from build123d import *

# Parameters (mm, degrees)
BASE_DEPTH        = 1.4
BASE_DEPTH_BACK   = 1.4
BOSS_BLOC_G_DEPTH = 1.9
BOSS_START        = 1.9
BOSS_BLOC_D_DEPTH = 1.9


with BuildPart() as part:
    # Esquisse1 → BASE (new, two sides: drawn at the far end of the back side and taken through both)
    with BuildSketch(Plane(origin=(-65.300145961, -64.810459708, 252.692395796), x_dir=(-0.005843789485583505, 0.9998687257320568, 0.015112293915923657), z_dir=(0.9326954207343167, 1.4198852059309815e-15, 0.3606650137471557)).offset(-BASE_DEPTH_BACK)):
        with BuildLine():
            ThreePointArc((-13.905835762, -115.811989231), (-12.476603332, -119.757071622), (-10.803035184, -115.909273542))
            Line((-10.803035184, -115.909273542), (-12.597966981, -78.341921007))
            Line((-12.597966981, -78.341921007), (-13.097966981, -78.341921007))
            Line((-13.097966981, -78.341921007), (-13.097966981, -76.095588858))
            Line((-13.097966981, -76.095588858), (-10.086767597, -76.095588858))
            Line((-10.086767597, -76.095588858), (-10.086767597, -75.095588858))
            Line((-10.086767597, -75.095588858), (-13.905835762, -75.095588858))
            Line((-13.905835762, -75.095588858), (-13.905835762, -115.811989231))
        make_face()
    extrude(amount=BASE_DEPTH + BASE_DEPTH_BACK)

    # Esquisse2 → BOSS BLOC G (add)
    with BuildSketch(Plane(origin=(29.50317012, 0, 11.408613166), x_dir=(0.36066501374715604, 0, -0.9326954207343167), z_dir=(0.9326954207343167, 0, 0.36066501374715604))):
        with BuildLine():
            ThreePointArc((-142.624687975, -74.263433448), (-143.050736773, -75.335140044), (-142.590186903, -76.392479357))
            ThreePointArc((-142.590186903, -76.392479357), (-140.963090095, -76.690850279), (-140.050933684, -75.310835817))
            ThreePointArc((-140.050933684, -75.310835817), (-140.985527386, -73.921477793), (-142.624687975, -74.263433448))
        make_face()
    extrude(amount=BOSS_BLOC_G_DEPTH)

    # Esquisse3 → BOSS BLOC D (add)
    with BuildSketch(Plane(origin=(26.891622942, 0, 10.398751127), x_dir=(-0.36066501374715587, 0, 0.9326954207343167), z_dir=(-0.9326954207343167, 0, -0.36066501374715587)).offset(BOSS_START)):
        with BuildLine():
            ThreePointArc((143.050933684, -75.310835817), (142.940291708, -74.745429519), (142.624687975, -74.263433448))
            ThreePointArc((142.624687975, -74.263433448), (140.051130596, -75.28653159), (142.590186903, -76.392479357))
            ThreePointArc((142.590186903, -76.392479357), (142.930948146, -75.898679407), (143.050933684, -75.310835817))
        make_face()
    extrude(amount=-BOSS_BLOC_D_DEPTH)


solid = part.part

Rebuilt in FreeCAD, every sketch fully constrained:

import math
import FreeCAD as App
import Part
import Sketcher

doc = App.newDocument("Part")
body = doc.addObject("PartDesign::Body", "Body")

# Sketch on an angled plane
sketch1 = body.newObject("Sketcher::SketchObject", "Sketch")
sketch1.Placement = App.Placement(App.Vector(-65.300146, -64.81046, 252.692396), App.Rotation(App.Vector(-0.005843789, 0.999868726, 0.015112294), App.Vector(-0.360617668, -0.016202818, 0.932572982), App.Vector(0.932695421, 0, 0.360665014), "ZXY"))
sketch1.addGeometry(Part.ArcOfCircle(Part.Circle(App.Vector(-12.4, -117.5, 0), App.Vector(0, 0, 1), 2.3), math.radians(132), math.radians(405)), False)
sketch1.addGeometry(Part.LineSegment(App.Vector(-10.8, -115.9, 0), App.Vector(-12.6, -78.3, 0)), False)
sketch1.addGeometry(Part.LineSegment(App.Vector(-12.6, -78.3, 0), App.Vector(-13.1, -78.3, 0)), False)
sketch1.addGeometry(Part.LineSegment(App.Vector(-13.1, -78.3, 0), App.Vector(-13.1, -76.1, 0)), False)
sketch1.addGeometry(Part.LineSegment(App.Vector(-13.1, -76.1, 0), App.Vector(-10.1, -76.1, 0)), False)
sketch1.addGeometry(Part.LineSegment(App.Vector(-10.1, -76.1, 0), App.Vector(-10.1, -75.1, 0)), False)
sketch1.addGeometry(Part.LineSegment(App.Vector(-10.1, -75.1, 0), App.Vector(-13.9, -75.1, 0)), False)
sketch1.addGeometry(Part.LineSegment(App.Vector(-13.9, -75.1, 0), App.Vector(-13.9, -115.8, 0)), False)
sketch1.addConstraint(Sketcher.Constraint("Coincident", 0, 2, 1, 1))
sketch1.addConstraint(Sketcher.Constraint("Coincident", 1, 2, 2, 1))
sketch1.addConstraint(Sketcher.Constraint("Coincident", 2, 2, 3, 1))
sketch1.addConstraint(Sketcher.Constraint("Coincident", 3, 2, 4, 1))
sketch1.addConstraint(Sketcher.Constraint("Coincident", 4, 2, 5, 1))
sketch1.addConstraint(Sketcher.Constraint("Coincident", 5, 2, 6, 1))
sketch1.addConstraint(Sketcher.Constraint("Coincident", 6, 2, 7, 1))
sketch1.addConstraint(Sketcher.Constraint("Coincident", 7, 2, 0, 1))
sketch1.addConstraint(Sketcher.Constraint("Horizontal", 2))
sketch1.addConstraint(Sketcher.Constraint("Vertical", 3))
sketch1.addConstraint(Sketcher.Constraint("Horizontal", 4))
sketch1.addConstraint(Sketcher.Constraint("Vertical", 5))
sketch1.addConstraint(Sketcher.Constraint("Horizontal", 6))
sketch1.addConstraint(Sketcher.Constraint("Vertical", 7))
sketch1.addConstraint(Sketcher.Constraint("DistanceY", 5, 1, 5, 2, 1.0))
sketch1.addConstraint(Sketcher.Constraint("DistanceX", 2, 2, 2, 1, 0.5))
sketch1.addConstraint(Sketcher.Constraint("DistanceY", 0, 3, -1, 1, 117.5))
sketch1.addConstraint(Sketcher.Constraint("DistanceX", 7, 2, 0, 3, 1.5))
sketch1.addConstraint(Sketcher.Constraint("Radius", 0, 2.258181))
sketch1.addConstraint(Sketcher.Constraint("DistanceX", 4, 1, 4, 2, 3.011199))
sketch1.addConstraint(Sketcher.Constraint("DistanceY", 7, 2, 7, 1, 40.7164))
sketch1.addConstraint(Sketcher.Constraint("DistanceX", 6, 2, 6, 1, 3.819068))
sketch1.addConstraint(Sketcher.Constraint("DistanceX", 0, 3, 0, 2, 1.602801))
sketch1.addConstraint(Sketcher.Constraint("Distance", 1, 37.610208))
sketch1.addConstraint(Sketcher.Constraint("DistanceX", 0, 3, -1, 1, 12.405836))
pad1 = body.newObject("PartDesign::Pad", "Pad")
pad1.Profile = sketch1
pad1.Type = "TwoLengths"
pad1.Length = 1.4
pad1.Length2 = 1.4

# Sketch on an angled plane
sketch2 = body.newObject("Sketcher::SketchObject", "Sketch001")
sketch2.Placement = App.Placement(App.Vector(29.50317, 0, 11.408613), App.Rotation(App.Vector(0.360665014, 0, -0.932695421), App.Vector(0, 1.000000001, 0), App.Vector(0.932695421, 0, 0.360665014), "ZXY"))
sketch2.addGeometry(Part.ArcOfCircle(Part.Circle(App.Vector(-141.6, -75.3, 0), App.Vector(0, 0, 1), 1.5), math.radians(136), math.radians(226)), False)
sketch2.addGeometry(Part.ArcOfCircle(Part.Circle(App.Vector(-141.6, -75.3, 0), App.Vector(0, 0, 1), 1.5), math.radians(-134), math.radians(0)), False)
sketch2.addGeometry(Part.ArcOfCircle(Part.Circle(App.Vector(-141.6, -75.3, 0), App.Vector(0, 0, 1), 1.5), math.radians(0), math.radians(136)), False)
sketch2.addConstraint(Sketcher.Constraint("Tangent", 0, 2, 1, 1))
sketch2.addConstraint(Sketcher.Constraint("Tangent", 1, 2, 2, 1))
sketch2.addConstraint(Sketcher.Constraint("Tangent", 2, 2, 0, 1))
sketch2.addConstraint(Sketcher.Constraint("Horizontal", 2, 3, 1, 2))
sketch2.addConstraint(Sketcher.Constraint("Radius", 0, 1.5))
sketch2.addConstraint(Sketcher.Constraint("DistanceX", 2, 2, 0, 2, 0.034501))
sketch2.addConstraint(Sketcher.Constraint("DistanceY", 0, 2, -1, 1, 76.392479))
sketch2.addConstraint(Sketcher.Constraint("DistanceX", 2, 2, -1, 1, 142.624688))
sketch2.addConstraint(Sketcher.Constraint("DistanceX", 0, 3, -1, 1, 141.550934))
pad2 = body.newObject("PartDesign::Pad", "Pad001")
pad2.Profile = sketch2
pad2.Length = 1.9

# Sketch on an angled plane
sketch3 = body.newObject("Sketcher::SketchObject", "Sketch002")
sketch3.Placement = App.Placement(App.Vector(25.119502, 0, 9.713488), App.Rotation(App.Vector(-0.360665014, 0, 0.932695421), App.Vector(0, 1.000000001, 0), App.Vector(-0.932695421, 0, -0.360665014), "ZXY"))
sketch3.addGeometry(Part.ArcOfCircle(Part.Circle(App.Vector(141.6, -75.3, 0), App.Vector(0, 0, 1), 1.5), math.radians(0), math.radians(44)), False)
sketch3.addGeometry(Part.ArcOfCircle(Part.Circle(App.Vector(141.6, -75.3, 0), App.Vector(0, 0, 1), 1.5), math.radians(44), math.radians(314)), False)
sketch3.addGeometry(Part.ArcOfCircle(Part.Circle(App.Vector(141.6, -75.3, 0), App.Vector(0, 0, 1), 1.5), math.radians(-46), math.radians(0)), False)
sketch3.addConstraint(Sketcher.Constraint("Tangent", 0, 2, 1, 1))
sketch3.addConstraint(Sketcher.Constraint("Tangent", 1, 2, 2, 1))
sketch3.addConstraint(Sketcher.Constraint("Tangent", 2, 2, 0, 1))
sketch3.addConstraint(Sketcher.Constraint("Horizontal", 1, 3, 2, 2))
sketch3.addConstraint(Sketcher.Constraint("Radius", 0, 1.5))
sketch3.addConstraint(Sketcher.Constraint("DistanceX", 1, 2, 0, 2, 0.034501))
sketch3.addConstraint(Sketcher.Constraint("DistanceX", -1, 1, 0, 2, 142.624688))
sketch3.addConstraint(Sketcher.Constraint("DistanceY", 1, 2, -1, 1, 76.392479))
sketch3.addConstraint(Sketcher.Constraint("DistanceX", -1, 1, 0, 3, 141.550934))
pad3 = body.newObject("PartDesign::Pad", "Pad002")
pad3.Profile = sketch3
pad3.Length = 1.9
pad3.Reversed = True

doc.recompute()
